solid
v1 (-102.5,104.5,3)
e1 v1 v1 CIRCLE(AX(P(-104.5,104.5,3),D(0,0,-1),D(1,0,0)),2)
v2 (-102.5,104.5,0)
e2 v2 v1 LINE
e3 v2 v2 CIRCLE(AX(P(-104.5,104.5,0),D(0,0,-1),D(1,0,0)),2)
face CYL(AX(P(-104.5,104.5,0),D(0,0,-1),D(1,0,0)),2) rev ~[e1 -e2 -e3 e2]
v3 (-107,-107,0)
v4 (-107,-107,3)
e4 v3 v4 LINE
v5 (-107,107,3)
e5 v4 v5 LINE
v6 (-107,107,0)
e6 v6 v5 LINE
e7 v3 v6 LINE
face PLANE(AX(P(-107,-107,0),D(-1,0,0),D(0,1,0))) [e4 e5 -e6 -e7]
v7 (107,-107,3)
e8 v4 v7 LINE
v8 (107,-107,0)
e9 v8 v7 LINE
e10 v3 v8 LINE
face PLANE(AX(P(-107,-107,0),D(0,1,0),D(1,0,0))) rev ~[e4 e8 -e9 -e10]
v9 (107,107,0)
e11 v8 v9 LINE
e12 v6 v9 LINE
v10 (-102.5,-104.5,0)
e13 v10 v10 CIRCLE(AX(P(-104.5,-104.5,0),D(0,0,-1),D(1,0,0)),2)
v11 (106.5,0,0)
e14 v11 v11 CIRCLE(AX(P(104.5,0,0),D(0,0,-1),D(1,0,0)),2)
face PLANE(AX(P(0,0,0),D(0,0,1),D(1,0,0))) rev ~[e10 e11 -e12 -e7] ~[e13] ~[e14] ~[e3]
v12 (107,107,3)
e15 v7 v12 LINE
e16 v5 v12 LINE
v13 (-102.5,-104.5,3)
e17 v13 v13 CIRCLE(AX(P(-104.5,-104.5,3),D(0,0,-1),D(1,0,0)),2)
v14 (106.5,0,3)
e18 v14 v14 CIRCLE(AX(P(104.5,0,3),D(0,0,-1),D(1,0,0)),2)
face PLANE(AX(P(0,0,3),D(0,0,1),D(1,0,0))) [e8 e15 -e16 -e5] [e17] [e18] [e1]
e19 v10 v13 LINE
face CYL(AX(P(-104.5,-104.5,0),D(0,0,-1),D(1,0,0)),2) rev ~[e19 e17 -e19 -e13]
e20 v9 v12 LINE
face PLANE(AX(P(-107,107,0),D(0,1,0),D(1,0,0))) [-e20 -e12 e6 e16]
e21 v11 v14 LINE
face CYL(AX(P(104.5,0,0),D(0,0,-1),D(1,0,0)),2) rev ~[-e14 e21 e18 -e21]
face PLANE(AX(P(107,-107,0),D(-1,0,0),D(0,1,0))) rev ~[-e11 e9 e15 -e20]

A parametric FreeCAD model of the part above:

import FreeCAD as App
import Part
import Sketcher
from FreeCAD import Vector

doc = App.newDocument("Part")
body = doc.addObject("PartDesign::Body", "Body")

sketch1 = body.newObject("Sketcher::SketchObject", "Sketch")
sketch1.AttachmentSupport = (doc.getObject("XY_Plane"), [""])
sketch1.MapMode = "FlatFace"
sketch1.addGeometry(Part.LineSegment(Vector(-107, 107, 0), Vector(-107, -107, 0)), False)
sketch1.addGeometry(Part.LineSegment(Vector(-107, -107, 0), Vector(107, -107, 0)), False)
sketch1.addGeometry(Part.LineSegment(Vector(107, -107, 0), Vector(107, 107, 0)), False)
sketch1.addGeometry(Part.LineSegment(Vector(107, 107, 0), Vector(-107, 107, 0)), False)
sketch1.addConstraint(Sketcher.Constraint("Coincident", 0, 2, 1, 1))
sketch1.addConstraint(Sketcher.Constraint("Coincident", 1, 2, 2, 1))
sketch1.addConstraint(Sketcher.Constraint("Coincident", 2, 2, 3, 1))
sketch1.addConstraint(Sketcher.Constraint("Coincident", 3, 2, 0, 1))
sketch1.addConstraint(Sketcher.Constraint("Vertical", 0))
sketch1.addConstraint(Sketcher.Constraint("Horizontal", 1))
sketch1.addConstraint(Sketcher.Constraint("Vertical", 2))
sketch1.addConstraint(Sketcher.Constraint("Horizontal", 3))
sketch1.addConstraint(Sketcher.Constraint("Symmetric", 0, 2, 2, 2, -1, 1))
sketch1.addConstraint(Sketcher.Constraint("Equal", 3, 0))
sketch1.addConstraint(Sketcher.Constraint("DistanceX", 1, 1, 1, 2, 214.0))
pad1 = body.newObject("PartDesign::Pad", "Pad")
pad1.Profile = sketch1
pad1.Length = 3

sketch2 = body.newObject("Sketcher::SketchObject", "Sketch001")
sketch2.AttachmentSupport = (doc.getObject("XY_Plane"), [""])
sketch2.MapMode = "FlatFace"
sketch2.addGeometry(Part.Circle(Vector(-104.5, 104.5, 0), Vector(0, 0, 1), 2), False)
sketch2.addGeometry(Part.Circle(Vector(-104.5, -104.5, 0), Vector(0, 0, 1), 2), False)
sketch2.addGeometry(Part.Circle(Vector(104.5, 0, 0), Vector(0, 0, 1), 2), False)
sketch2.addConstraint(Sketcher.Constraint("Equal", 0, 1))
sketch2.addConstraint(Sketcher.Constraint("Equal", 1, 2))
sketch2.addConstraint(Sketcher.Constraint("Symmetric", 0, 3, 1, 3, -1))
sketch2.addConstraint(Sketcher.Constraint("PointOnObject", 2, 3, -1))
sketch2.addConstraint(Sketcher.Constraint("Diameter", 0, 4.0))
sketch2.addConstraint(Sketcher.Constraint("DistanceY", 1, 3, 0, 3, 209.0))
sketch2.addConstraint(Sketcher.Constraint("DistanceX", 0, 3, 2, 3, 209.0))
sketch2.addConstraint(Sketcher.Constraint("DistanceX", 0, 3, -1, 1, 104.5))
pocket1 = body.newObject("PartDesign::Pocket", "Pocket")
pocket1.Profile = sketch2
pocket1.Type = "ThroughAll"
pocket1.Reversed = True

doc.recompute()
